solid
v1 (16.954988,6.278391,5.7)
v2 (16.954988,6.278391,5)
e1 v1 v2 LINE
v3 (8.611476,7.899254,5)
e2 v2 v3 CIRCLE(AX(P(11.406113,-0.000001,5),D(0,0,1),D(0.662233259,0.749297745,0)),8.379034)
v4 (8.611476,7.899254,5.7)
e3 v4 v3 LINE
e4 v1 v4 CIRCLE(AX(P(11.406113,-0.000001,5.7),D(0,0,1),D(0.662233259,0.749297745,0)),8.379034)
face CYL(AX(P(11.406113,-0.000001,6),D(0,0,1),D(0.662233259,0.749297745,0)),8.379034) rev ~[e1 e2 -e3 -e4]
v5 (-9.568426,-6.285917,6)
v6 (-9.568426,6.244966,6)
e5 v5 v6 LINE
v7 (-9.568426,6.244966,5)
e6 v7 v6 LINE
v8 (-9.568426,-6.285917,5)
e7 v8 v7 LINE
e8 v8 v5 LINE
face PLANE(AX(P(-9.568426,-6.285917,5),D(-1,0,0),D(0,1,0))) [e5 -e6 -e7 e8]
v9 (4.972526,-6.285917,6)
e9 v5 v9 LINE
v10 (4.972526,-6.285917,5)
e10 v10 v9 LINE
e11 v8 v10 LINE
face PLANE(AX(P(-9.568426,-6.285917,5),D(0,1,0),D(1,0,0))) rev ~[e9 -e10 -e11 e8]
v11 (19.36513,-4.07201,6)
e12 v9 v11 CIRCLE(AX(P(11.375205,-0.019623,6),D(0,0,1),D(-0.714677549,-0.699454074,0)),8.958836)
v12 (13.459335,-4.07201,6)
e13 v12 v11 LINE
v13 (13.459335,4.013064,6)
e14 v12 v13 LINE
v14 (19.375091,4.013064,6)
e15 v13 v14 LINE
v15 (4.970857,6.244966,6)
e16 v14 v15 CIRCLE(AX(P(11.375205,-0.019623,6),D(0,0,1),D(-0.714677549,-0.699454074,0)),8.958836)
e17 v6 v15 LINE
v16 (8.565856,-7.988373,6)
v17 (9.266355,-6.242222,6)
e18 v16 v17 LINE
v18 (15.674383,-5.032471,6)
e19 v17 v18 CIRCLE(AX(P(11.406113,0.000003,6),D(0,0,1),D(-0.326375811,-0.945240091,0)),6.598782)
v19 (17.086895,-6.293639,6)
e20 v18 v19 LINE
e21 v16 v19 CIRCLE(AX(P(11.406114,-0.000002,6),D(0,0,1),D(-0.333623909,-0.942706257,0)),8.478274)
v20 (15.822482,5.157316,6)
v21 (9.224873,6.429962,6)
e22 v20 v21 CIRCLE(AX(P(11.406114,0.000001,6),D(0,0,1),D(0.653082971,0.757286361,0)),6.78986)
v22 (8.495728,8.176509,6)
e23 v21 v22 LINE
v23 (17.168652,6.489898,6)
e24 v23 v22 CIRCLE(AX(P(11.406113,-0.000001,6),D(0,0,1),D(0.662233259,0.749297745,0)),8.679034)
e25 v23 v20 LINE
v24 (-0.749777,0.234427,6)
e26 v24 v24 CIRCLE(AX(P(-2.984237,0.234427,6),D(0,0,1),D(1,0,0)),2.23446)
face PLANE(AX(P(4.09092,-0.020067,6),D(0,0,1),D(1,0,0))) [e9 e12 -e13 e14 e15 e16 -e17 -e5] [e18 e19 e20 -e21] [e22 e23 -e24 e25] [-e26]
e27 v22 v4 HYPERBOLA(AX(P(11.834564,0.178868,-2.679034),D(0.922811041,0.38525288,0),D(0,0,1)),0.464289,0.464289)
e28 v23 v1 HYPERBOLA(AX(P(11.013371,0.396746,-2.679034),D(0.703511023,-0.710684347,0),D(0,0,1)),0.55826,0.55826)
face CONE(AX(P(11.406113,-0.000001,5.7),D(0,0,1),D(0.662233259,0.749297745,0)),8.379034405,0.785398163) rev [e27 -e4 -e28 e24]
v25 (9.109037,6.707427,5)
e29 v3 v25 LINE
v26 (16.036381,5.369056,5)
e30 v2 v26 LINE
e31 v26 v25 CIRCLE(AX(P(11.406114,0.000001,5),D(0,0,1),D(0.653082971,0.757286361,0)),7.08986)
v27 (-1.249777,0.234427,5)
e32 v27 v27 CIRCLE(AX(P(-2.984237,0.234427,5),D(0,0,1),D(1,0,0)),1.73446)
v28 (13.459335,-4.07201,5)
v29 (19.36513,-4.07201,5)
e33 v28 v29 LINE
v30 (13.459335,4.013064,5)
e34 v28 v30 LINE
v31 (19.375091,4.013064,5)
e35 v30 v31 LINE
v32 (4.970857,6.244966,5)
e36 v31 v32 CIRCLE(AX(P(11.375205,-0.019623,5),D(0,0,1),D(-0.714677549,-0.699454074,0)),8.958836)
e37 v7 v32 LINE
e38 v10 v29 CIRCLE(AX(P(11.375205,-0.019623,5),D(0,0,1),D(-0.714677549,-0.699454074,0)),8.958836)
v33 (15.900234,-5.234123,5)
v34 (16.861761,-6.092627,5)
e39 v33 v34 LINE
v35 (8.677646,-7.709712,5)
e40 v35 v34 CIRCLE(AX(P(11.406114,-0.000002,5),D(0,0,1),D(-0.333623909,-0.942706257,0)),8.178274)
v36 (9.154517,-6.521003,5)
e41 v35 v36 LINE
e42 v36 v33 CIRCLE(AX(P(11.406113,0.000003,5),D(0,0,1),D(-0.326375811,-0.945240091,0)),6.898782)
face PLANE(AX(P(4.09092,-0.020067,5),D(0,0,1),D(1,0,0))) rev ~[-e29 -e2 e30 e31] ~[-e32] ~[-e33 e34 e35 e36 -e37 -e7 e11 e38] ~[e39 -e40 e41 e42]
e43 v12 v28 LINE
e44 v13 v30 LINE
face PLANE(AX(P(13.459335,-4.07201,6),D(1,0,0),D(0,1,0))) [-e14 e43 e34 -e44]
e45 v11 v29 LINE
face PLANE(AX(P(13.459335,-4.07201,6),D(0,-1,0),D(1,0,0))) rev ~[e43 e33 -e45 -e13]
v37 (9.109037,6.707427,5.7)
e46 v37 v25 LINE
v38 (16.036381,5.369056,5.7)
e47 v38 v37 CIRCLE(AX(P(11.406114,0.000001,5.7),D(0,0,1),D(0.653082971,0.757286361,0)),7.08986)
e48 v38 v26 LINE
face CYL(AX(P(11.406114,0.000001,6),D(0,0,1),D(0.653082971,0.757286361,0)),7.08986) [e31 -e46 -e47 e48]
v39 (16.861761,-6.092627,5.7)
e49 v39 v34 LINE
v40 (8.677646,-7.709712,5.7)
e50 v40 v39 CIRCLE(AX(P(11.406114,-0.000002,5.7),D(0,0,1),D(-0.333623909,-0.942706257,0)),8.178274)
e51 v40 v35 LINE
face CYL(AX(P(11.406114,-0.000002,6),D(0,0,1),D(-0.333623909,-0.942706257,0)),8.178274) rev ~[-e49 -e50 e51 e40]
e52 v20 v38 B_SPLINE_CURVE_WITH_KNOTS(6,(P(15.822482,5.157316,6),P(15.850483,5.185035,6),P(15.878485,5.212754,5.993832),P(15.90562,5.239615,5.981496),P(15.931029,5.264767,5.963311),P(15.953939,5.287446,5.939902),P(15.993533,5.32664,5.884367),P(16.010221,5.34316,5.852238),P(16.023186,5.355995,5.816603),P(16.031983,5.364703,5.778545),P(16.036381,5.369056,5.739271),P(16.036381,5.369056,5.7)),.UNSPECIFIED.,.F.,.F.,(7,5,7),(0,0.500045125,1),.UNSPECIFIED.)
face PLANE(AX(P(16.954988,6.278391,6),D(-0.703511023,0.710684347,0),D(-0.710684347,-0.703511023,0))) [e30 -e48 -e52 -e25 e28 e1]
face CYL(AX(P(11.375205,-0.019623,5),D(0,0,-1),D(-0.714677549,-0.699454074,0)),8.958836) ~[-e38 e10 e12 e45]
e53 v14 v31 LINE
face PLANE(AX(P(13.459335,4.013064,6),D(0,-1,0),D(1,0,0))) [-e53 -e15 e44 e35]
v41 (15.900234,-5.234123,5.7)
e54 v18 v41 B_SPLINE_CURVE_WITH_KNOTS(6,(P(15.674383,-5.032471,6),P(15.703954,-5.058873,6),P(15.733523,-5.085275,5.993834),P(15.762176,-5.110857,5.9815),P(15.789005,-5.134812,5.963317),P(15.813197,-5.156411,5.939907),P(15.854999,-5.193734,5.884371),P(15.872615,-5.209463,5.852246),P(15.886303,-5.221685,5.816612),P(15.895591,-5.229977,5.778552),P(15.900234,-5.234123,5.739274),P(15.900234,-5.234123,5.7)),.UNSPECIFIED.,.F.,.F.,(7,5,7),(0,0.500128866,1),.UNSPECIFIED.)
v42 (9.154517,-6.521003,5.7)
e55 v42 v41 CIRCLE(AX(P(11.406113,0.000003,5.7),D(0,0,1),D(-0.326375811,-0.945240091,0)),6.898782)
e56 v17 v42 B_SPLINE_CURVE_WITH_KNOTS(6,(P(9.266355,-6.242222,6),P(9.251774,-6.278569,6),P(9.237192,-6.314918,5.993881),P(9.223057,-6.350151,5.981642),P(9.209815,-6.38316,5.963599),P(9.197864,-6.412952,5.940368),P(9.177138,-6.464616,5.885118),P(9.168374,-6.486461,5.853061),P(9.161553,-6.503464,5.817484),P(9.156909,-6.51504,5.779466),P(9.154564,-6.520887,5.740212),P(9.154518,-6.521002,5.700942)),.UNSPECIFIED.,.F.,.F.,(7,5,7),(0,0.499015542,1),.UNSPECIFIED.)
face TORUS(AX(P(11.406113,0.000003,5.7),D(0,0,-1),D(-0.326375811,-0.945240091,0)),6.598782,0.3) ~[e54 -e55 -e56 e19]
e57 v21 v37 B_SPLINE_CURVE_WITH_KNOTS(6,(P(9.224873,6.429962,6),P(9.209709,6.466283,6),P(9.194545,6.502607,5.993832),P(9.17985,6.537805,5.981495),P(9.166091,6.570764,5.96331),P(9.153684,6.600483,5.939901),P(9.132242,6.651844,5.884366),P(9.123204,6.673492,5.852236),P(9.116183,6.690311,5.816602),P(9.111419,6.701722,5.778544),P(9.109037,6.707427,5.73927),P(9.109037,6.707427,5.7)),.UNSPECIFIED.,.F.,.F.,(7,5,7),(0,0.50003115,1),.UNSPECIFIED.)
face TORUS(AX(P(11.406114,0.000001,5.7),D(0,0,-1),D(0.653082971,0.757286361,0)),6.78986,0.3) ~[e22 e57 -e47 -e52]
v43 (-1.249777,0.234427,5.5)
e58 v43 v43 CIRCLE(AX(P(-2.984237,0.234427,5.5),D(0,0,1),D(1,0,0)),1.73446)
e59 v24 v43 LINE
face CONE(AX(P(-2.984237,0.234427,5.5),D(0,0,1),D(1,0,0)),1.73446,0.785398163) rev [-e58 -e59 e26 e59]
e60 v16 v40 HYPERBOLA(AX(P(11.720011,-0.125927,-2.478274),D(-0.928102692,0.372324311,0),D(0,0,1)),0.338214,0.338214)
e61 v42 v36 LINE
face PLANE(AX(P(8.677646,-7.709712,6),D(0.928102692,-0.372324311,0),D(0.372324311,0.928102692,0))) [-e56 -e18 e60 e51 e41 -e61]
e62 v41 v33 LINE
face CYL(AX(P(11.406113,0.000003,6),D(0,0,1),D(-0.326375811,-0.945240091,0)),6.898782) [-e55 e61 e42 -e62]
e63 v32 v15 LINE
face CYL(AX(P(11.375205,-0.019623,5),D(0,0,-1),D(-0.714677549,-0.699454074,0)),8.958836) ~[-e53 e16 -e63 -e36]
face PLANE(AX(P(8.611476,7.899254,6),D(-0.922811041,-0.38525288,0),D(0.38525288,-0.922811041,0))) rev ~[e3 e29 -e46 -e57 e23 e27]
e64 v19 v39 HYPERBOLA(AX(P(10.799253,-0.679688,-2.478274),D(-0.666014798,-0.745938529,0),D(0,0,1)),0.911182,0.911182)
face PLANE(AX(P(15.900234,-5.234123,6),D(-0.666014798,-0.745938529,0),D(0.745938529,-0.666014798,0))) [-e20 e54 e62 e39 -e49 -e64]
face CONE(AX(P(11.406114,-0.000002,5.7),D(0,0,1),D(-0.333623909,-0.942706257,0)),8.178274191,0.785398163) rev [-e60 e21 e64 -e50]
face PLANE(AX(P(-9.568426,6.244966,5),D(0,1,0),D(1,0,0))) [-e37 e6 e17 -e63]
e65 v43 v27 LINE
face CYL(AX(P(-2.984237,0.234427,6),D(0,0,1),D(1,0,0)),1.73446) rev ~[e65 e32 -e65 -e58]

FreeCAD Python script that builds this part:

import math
import FreeCAD as App
import Part
import Sketcher
from FreeCAD import Vector
Q = App.Units.Quantity


def edges_at(feature, points):
    """Names of the edges that pass closest to the given points."""
    edges = feature.Shape.Edges
    near = lambda p: min(range(len(edges)), key=lambda i: edges[i].distToShape(Part.Vertex(*p))[0])
    return sorted({f"Edge{near(p) + 1}" for p in points})


def add_polygon(sketch, points):
    """Adds a closed chain of lines whose ends are joined by coincident constraints."""
    first, n = sketch.GeometryCount, len(points)
    for a, b in zip(points, points[1:] + points[:1]):
        sketch.addGeometry(Part.LineSegment(App.Vector(*a, 0), App.Vector(*b, 0)), False)
    for i in range(n):
        sketch.addConstraint(Sketcher.Constraint("Coincident", first + i, 2, first + (i + 1) % n, 1))

doc = App.newDocument("Part")
params = doc.addObject("Spreadsheet::Sheet", "Params")
for row, (alias, value) in enumerate([
    ("pad1_length", "1 mm"),
    ("pocket1_length", "1 mm"),
    ("pocket2_length", "1 mm"),
    ("chamfer_size", "0.5 mm"),
    ("pocket3_length", "5 mm"),
    ("pocket4_length", "5 mm"),
    ("fillet_radius", "0.3 mm"),
    ("fillet2_radius", "0.3 mm"),
    ("chamfer2_size", "0.3 mm"),
    ("chamfer3_size", "0.3 mm"),
], start=1):
    params.set(f"A{row}", alias)
    params.set(f"B{row}", "=" + value)
    params.setAlias(f"B{row}", alias)

body = doc.addObject("PartDesign::Body", "Body")

# Sketch on XY plane
sketch1 = body.newObject("Sketcher::SketchObject", "Sketch")
sketch1.AttachmentSupport = (doc.getObject("XY_Plane"), [""])
sketch1.MapMode = "FlatFace"
sketch1.AttachmentOffset = App.Placement(Vector(0, 0, 5), App.Rotation())
sketch1.addGeometry([
    Part.LineSegment(Vector(-10, -6, 0), Vector(5, -6, 0)),
    Part.ArcOfCircle(Part.Circle(Vector(11, 0, 0), Vector(0, 0, 1), 9), math.radians(-136), math.radians(136)),
    Part.LineSegment(Vector(5, 6, 0), Vector(-10, 6, 0)),
    Part.LineSegment(Vector(-10, 6, 0), Vector(-10, -6, 0)),
], False)
sketch1.addConstraint([
    Sketcher.Constraint("Coincident", 0, 2, 1, 1),
    Sketcher.Constraint("Coincident", 1, 2, 2, 1),
    Sketcher.Constraint("Coincident", 2, 2, 3, 1),
    Sketcher.Constraint("Coincident", 3, 2, 0, 1),
    Sketcher.Constraint("Horizontal", 0),
    Sketcher.Constraint("Horizontal", 2),
    Sketcher.Constraint("Vertical", 3),
    Sketcher.Constraint("Radius", 1, Q("8.958836 mm")),
    Sketcher.Constraint("DistanceX", 0, 1, 0, 2, Q("14.540952 mm")),
    Sketcher.Constraint("DistanceX", 2, 2, 2, 1, Q("14.539283 mm")),
    Sketcher.Constraint("DistanceY", 3, 2, 3, 1, Q("12.530883 mm")),
    Sketcher.Constraint("DistanceX", -1, 1, 1, 3, Q("11.375205 mm")),
    Sketcher.Constraint("DistanceY", 1, 3, -1, 1, Q("0.019623 mm")),
])
pad1 = body.newObject("PartDesign::Pad", "Pad")
pad1.Profile = sketch1
pad1.setExpression("Length", "Params.pad1_length")

# Sketch on XY plane
sketch2 = body.newObject("Sketcher::SketchObject", "Sketch001")
sketch2.AttachmentSupport = (doc.getObject("XY_Plane"), [""])
sketch2.MapMode = "FlatFace"
sketch2.AttachmentOffset = App.Placement(Vector(0, 0, 5), App.Rotation())
sketch2.addGeometry(Part.Circle(Vector(-3, 0.2, 0), Vector(0, 0, 1), 1.7), False)
sketch2.addConstraint([
    Sketcher.Constraint("Diameter", 0, Q("3.385754 mm")),
    Sketcher.Constraint("DistanceX", 0, 3, -1, 1, Q("2.957902 mm")),
    Sketcher.Constraint("DistanceY", -1, 1, 0, 3, Q("0.204839 mm")),
])
pocket1 = body.newObject("PartDesign::Pocket", "Pocket")
pocket1.Profile = sketch2
pocket1.setExpression("Length", "Params.pocket1_length")

# Sketch on XY plane
sketch3 = body.newObject("Sketcher::SketchObject", "Sketch002")
sketch3.AttachmentSupport = (doc.getObject("XY_Plane"), [""])
sketch3.MapMode = "FlatFace"
sketch3.AttachmentOffset = App.Placement(Vector(0, 0, 6), App.Rotation())
sketch3.addGeometry(Part.Circle(Vector(-3, 0.2, 0), Vector(0, 0, 1), 1.7), False)
sketch3.addConstraint([
    Sketcher.Constraint("Diameter", 0, Q("3.46892 mm")),
    Sketcher.Constraint("DistanceX", 0, 3, -1, 1, Q("2.984237 mm")),
    Sketcher.Constraint("DistanceY", -1, 1, 0, 3, Q("0.234427 mm")),
])
pocket2 = body.newObject("PartDesign::Pocket", "Pocket001")
pocket2.Profile = sketch3
pocket2.setExpression("Length", "Params.pocket2_length")
doc.recompute()

chamfer = body.newObject("PartDesign::Chamfer", "Chamfer")
chamfer.Base = (pocket2, edges_at(pocket2, [(-4.719, 0.234, 6)]))
chamfer.setExpression("Size", "Params.chamfer_size")

# Sketch on XY plane
sketch4 = body.newObject("Sketcher::SketchObject", "Sketch003")
sketch4.AttachmentSupport = (doc.getObject("XY_Plane"), [""])
sketch4.MapMode = "FlatFace"
sketch4.AttachmentOffset = App.Placement(Vector(0, 0, 6), App.Rotation())
sketch4.addGeometry([
    Part.ArcOfCircle(Part.Circle(Vector(11.4, 0, 0), Vector(0, 0, 1), 8.4), math.radians(49), math.radians(109)),  # 0
    Part.LineSegment(Vector(8.6, 7.9, 0), Vector(9.1, 6.7, 0)),  # 1
    Part.ArcOfCircle(Part.Circle(Vector(11.4, 0, 0), Vector(0, 0, 1), 7.1), math.radians(49), math.radians(109)),  # 2
    Part.LineSegment(Vector(16, 5.4, 0), Vector(17, 6.3, 0)),  # 3
    Part.ArcOfCircle(Part.Circle(Vector(11.4, 0, 0), Vector(0, 0, 1), 8.2), math.radians(-109), math.radians(-48)),  # 4
    Part.LineSegment(Vector(16.9, -6.1, 0), Vector(15.9, -5.2, 0)),  # 5
    Part.ArcOfCircle(Part.Circle(Vector(11.4, 0, 0), Vector(0, 0, 1), 6.9), math.radians(-109), math.radians(-49)),  # 6
    Part.LineSegment(Vector(9.2, -6.5, 0), Vector(8.7, -7.7, 0)),  # 7
], False)
sketch4.addConstraint([
    Sketcher.Constraint("Coincident", 0, 2, 1, 1),
    Sketcher.Constraint("Coincident", 1, 2, 2, 2),
    Sketcher.Constraint("Coincident", 2, 1, 3, 1),
    Sketcher.Constraint("Coincident", 3, 2, 0, 1),
    Sketcher.Constraint("Coincident", 4, 2, 5, 1),
    Sketcher.Constraint("Coincident", 5, 2, 6, 2),
    Sketcher.Constraint("Coincident", 6, 1, 7, 1),
    Sketcher.Constraint("Coincident", 7, 2, 4, 1),
    Sketcher.Constraint("Coincident", 2, 3, 0, 3),
    Sketcher.Constraint("Coincident", 4, 3, 0, 3),
    Sketcher.Constraint("Coincident", 6, 3, 0, 3),
    Sketcher.Constraint("PointOnObject", 0, 3, -1),
    Sketcher.Constraint("Radius", 2, Q("7.08986 mm")),
    Sketcher.Constraint("Radius", 0, Q("8.379034 mm")),
    Sketcher.Constraint("Radius", 4, Q("8.178274 mm")),
    Sketcher.Constraint("Radius", 6, Q("6.898782 mm")),
    Sketcher.Constraint("DistanceY", 6, 1, 4, 3, Q("6.521001 mm")),
    Sketcher.Constraint("DistanceX", -1, 1, 2, 1, Q("16.036381 mm")),
    Sketcher.Constraint("DistanceX", -1, 1, 3, 2, Q("16.954988 mm")),
    Sketcher.Constraint("DistanceY", -1, 1, 3, 2, Q("6.278391 mm")),
    Sketcher.Constraint("DistanceX", -1, 1, 4, 2, Q("16.861761 mm")),
    Sketcher.Constraint("DistanceY", 7, 2, -1, 1, Q("7.709712 mm")),
    Sketcher.Constraint("DistanceY", 6, 3, 0, 2, Q("7.899251 mm")),
    Sketcher.Constraint("DistanceX", 0, 2, 1, 2, Q("0.497561 mm")),
    Sketcher.Constraint("DistanceX", 4, 3, 5, 2, Q("4.49412 mm")),
])
pocket3 = body.newObject("PartDesign::Pocket", "Pocket002")
pocket3.Profile = sketch4
pocket3.setExpression("Length", "Params.pocket3_length")

# Sketch on XY plane
sketch5 = body.newObject("Sketcher::SketchObject", "Sketch004")
sketch5.AttachmentSupport = (doc.getObject("XY_Plane"), [""])
sketch5.MapMode = "FlatFace"
sketch5.AttachmentOffset = App.Placement(Vector(0, 0, 6), App.Rotation())
add_polygon(sketch5, [(13, 4), (13, -4), (22, -4), (22, 4)])  # lines 0-3
sketch5.addConstraint([
    Sketcher.Constraint("Vertical", 0),
    Sketcher.Constraint("Horizontal", 1),
    Sketcher.Constraint("Vertical", 2),
    Sketcher.Constraint("Horizontal", 3),
    Sketcher.Constraint("DistanceX", 1, 1, 1, 2, Q("8.212181 mm")),
    Sketcher.Constraint("DistanceY", 0, 2, 0, 1, Q("8.085074 mm")),
    Sketcher.Constraint("DistanceY", 0, 2, -1, 1, Q("4.07201 mm")),
    Sketcher.Constraint("DistanceX", -1, 1, 0, 2, Q("13.459335 mm")),
])
pocket4 = body.newObject("PartDesign::Pocket", "Pocket003")
pocket4.Profile = sketch5
pocket4.setExpression("Length", "Params.pocket4_length")
doc.recompute()

fillet = body.newObject("PartDesign::Fillet", "Fillet")
fillet.Base = (pocket4, edges_at(pocket4, [(12.699, -6.777, 6)]))
fillet.setExpression("Radius", "Params.fillet_radius")
doc.recompute()

fillet2 = body.newObject("PartDesign::Fillet", "Fillet001")
fillet2.Base = (fillet, edges_at(fillet, [(12.751, 6.961, 6)]))
fillet2.setExpression("Radius", "Params.fillet2_radius")
doc.recompute()

chamfer2 = body.newObject("PartDesign::Chamfer", "Chamfer001")
chamfer2.Base = (fillet2, edges_at(fillet2, [(12.991, -8.023, 6)]))
chamfer2.setExpression("Size", "Params.chamfer2_size")
doc.recompute()

chamfer3 = body.newObject("PartDesign::Chamfer", "Chamfer002")
chamfer3.Base = (chamfer2, edges_at(chamfer2, [(13.004, 8.225, 6)]))
chamfer3.setExpression("Size", "Params.chamfer3_size")

doc.recompute()
